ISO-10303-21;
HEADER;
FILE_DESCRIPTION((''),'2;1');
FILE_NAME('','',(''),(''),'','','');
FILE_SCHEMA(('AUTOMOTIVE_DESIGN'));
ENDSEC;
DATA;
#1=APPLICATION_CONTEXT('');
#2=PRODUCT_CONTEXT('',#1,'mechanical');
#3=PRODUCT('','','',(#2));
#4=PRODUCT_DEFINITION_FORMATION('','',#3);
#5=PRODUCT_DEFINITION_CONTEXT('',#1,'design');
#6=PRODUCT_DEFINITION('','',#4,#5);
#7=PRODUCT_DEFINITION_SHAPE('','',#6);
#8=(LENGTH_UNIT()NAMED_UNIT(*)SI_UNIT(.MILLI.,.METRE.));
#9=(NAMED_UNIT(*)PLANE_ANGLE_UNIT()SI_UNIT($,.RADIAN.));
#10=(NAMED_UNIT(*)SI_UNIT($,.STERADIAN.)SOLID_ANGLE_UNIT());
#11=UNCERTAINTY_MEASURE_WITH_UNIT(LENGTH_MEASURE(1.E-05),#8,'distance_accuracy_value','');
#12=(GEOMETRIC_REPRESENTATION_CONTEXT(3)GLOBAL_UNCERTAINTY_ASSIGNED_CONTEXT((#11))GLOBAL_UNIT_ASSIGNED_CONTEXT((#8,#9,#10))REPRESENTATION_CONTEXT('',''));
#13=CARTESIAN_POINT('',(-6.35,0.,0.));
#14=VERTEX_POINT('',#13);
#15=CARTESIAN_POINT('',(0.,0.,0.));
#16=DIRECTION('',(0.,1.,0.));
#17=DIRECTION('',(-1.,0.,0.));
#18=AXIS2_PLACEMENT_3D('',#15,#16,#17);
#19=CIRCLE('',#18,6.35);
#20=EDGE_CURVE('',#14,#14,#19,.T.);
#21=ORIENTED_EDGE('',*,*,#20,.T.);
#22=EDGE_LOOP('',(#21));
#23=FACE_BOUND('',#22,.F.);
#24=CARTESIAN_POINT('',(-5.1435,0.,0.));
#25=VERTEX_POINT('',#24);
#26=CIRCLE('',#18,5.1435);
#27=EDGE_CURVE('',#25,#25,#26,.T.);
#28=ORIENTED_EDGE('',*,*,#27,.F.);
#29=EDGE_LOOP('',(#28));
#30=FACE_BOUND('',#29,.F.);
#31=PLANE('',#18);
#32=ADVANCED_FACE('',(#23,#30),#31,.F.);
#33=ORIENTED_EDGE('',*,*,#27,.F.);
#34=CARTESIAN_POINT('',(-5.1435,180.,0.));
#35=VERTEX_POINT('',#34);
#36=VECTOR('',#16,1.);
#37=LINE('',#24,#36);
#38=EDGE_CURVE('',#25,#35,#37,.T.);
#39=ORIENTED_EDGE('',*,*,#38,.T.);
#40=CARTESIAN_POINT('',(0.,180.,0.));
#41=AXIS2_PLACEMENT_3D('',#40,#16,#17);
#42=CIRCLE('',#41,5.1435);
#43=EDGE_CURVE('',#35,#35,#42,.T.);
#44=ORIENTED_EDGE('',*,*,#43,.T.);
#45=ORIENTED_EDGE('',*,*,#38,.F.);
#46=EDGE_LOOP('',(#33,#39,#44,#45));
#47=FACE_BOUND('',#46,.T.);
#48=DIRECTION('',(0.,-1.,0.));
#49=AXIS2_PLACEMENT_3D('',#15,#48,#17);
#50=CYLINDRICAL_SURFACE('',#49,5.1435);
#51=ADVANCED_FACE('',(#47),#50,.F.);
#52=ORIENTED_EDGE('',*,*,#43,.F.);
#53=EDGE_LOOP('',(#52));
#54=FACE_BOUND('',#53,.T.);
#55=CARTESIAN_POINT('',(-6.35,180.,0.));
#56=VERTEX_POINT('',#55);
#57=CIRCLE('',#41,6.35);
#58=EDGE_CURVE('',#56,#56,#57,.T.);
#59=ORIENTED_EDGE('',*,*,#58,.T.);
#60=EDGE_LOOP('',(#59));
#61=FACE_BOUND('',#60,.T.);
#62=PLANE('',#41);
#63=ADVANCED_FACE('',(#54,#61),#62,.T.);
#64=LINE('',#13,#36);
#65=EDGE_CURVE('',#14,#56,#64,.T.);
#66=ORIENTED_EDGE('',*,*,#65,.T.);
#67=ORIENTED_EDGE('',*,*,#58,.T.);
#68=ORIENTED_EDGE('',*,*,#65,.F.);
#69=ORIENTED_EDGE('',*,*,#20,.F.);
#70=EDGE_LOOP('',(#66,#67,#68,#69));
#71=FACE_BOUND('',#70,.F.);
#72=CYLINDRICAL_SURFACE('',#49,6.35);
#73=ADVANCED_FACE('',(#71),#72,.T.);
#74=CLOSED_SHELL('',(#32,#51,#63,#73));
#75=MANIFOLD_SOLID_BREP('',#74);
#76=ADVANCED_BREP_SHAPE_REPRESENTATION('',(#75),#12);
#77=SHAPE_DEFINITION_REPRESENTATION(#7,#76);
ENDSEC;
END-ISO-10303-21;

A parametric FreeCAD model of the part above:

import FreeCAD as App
import Part
import Sketcher

V = App.Vector
Q = App.Units.Quantity

doc = App.newDocument("Part")
body = doc.addObject("PartDesign::Body", "Body")

# Sketch on XZ plane
sketch1 = body.newObject("Sketcher::SketchObject", "Sketch")
sketch1.AttachmentSupport = (doc.getObject("XZ_Plane"), [""])
sketch1.MapMode = "FlatFace"
sketch1.addGeometry([
    Part.Circle(V(0, 0, 0), V(0, 0, 1), 6),
    Part.Circle(V(0, 0, 0), V(0, 0, 1), 5),
], False)
sketch1.addConstraint([
    Sketcher.Constraint("Coincident", 0, 3, -1, 1),
    Sketcher.Constraint("Coincident", 1, 3, -1, 1),
    Sketcher.Constraint("Diameter", 0, Q("0.5 in")),
    Sketcher.Constraint("Diameter", 1, Q("0.405 in")),
])
pad1 = body.newObject("PartDesign::Pad", "Pad")
pad1.Profile = sketch1
pad1.Length = 180
pad1.Reversed = True

doc.recompute()
